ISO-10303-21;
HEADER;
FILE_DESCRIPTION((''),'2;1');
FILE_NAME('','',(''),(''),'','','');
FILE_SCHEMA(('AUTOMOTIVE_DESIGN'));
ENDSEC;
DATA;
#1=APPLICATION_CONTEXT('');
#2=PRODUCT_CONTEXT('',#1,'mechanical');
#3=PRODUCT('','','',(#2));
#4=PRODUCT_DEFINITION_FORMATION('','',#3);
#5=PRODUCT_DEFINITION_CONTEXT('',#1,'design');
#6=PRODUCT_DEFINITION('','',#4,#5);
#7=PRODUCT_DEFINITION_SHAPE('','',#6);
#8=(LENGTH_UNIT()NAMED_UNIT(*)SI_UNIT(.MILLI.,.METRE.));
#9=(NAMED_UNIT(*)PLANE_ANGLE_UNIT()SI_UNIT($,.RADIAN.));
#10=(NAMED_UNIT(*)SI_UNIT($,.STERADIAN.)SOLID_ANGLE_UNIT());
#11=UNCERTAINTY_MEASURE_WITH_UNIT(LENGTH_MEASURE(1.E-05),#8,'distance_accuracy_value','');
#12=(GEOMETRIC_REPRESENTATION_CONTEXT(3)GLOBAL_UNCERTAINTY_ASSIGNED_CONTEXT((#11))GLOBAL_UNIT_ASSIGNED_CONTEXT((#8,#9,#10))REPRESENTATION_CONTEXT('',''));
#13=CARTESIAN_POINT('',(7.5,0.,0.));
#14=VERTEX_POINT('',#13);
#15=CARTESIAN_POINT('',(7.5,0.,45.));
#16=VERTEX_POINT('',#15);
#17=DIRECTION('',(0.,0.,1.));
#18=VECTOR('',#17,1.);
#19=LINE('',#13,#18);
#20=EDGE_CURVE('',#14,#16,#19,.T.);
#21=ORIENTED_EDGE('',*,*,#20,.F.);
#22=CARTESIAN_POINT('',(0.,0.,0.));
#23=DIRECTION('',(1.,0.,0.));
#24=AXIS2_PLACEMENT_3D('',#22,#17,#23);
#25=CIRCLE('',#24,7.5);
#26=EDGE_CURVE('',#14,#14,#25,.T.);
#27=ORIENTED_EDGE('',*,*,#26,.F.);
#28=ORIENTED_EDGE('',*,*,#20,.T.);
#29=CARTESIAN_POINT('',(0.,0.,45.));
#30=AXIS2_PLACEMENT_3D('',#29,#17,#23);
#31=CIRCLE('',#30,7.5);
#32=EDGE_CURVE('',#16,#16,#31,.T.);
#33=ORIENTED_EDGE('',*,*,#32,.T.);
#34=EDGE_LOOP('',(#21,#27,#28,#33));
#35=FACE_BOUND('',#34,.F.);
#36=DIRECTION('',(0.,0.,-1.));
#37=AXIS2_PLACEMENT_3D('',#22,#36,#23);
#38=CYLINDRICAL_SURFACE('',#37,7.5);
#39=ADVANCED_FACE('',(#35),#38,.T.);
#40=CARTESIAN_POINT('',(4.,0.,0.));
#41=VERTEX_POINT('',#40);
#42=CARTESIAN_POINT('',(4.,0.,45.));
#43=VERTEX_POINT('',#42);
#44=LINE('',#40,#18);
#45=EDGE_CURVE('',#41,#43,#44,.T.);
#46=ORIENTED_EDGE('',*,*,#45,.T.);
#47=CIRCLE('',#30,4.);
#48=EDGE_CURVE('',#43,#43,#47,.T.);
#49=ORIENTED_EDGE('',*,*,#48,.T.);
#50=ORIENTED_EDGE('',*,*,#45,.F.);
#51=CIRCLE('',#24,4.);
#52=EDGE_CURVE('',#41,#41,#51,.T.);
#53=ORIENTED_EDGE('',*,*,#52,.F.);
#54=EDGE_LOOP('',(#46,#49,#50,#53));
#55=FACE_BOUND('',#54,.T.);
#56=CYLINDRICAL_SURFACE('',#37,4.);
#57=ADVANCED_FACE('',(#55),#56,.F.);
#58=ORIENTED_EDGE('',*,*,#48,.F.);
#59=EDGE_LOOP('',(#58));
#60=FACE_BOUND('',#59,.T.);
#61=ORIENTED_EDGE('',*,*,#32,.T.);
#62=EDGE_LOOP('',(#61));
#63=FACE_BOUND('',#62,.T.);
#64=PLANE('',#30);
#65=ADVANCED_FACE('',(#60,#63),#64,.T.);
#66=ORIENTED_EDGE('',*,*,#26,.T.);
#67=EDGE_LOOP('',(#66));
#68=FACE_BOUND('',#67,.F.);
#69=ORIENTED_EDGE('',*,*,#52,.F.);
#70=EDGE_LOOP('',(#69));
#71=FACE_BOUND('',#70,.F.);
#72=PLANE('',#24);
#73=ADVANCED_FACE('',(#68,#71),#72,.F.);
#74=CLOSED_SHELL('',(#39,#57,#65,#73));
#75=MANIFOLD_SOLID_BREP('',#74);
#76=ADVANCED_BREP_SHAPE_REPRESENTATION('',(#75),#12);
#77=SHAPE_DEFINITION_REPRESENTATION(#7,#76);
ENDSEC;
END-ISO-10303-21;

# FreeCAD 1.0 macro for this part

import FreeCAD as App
import Part
import Sketcher

doc = App.newDocument("Part")
body = doc.addObject("PartDesign::Body", "Body")

# Sketch on XY plane
sketch1 = doc.addObject("Sketcher::SketchObject", "Sketch")
body.addObject(sketch1)
sketch1.AttachmentSupport = (doc.XY_Plane, [""])
sketch1.MapMode = "FlatFace"
sketch1.addGeometry([
    Part.Circle(App.Vector(0, 0, 0), App.Vector(0, 0, 1), 7.5),
    Part.Circle(App.Vector(0, 0, 0), App.Vector(0, 0, 1), 4),
], False)
sketch1.addConstraint([
    Sketcher.Constraint("Coincident", 0, 3, -1, 1),
    Sketcher.Constraint("Coincident", 1, 3, -1, 1),
    Sketcher.Constraint("Diameter", 0, 15.0),
    Sketcher.Constraint("Diameter", 1, 8.0),
])
pad1 = doc.addObject("PartDesign::Pad", "Pad")
body.addObject(pad1)
pad1.Profile = sketch1
pad1.Length = 45

doc.recompute()
